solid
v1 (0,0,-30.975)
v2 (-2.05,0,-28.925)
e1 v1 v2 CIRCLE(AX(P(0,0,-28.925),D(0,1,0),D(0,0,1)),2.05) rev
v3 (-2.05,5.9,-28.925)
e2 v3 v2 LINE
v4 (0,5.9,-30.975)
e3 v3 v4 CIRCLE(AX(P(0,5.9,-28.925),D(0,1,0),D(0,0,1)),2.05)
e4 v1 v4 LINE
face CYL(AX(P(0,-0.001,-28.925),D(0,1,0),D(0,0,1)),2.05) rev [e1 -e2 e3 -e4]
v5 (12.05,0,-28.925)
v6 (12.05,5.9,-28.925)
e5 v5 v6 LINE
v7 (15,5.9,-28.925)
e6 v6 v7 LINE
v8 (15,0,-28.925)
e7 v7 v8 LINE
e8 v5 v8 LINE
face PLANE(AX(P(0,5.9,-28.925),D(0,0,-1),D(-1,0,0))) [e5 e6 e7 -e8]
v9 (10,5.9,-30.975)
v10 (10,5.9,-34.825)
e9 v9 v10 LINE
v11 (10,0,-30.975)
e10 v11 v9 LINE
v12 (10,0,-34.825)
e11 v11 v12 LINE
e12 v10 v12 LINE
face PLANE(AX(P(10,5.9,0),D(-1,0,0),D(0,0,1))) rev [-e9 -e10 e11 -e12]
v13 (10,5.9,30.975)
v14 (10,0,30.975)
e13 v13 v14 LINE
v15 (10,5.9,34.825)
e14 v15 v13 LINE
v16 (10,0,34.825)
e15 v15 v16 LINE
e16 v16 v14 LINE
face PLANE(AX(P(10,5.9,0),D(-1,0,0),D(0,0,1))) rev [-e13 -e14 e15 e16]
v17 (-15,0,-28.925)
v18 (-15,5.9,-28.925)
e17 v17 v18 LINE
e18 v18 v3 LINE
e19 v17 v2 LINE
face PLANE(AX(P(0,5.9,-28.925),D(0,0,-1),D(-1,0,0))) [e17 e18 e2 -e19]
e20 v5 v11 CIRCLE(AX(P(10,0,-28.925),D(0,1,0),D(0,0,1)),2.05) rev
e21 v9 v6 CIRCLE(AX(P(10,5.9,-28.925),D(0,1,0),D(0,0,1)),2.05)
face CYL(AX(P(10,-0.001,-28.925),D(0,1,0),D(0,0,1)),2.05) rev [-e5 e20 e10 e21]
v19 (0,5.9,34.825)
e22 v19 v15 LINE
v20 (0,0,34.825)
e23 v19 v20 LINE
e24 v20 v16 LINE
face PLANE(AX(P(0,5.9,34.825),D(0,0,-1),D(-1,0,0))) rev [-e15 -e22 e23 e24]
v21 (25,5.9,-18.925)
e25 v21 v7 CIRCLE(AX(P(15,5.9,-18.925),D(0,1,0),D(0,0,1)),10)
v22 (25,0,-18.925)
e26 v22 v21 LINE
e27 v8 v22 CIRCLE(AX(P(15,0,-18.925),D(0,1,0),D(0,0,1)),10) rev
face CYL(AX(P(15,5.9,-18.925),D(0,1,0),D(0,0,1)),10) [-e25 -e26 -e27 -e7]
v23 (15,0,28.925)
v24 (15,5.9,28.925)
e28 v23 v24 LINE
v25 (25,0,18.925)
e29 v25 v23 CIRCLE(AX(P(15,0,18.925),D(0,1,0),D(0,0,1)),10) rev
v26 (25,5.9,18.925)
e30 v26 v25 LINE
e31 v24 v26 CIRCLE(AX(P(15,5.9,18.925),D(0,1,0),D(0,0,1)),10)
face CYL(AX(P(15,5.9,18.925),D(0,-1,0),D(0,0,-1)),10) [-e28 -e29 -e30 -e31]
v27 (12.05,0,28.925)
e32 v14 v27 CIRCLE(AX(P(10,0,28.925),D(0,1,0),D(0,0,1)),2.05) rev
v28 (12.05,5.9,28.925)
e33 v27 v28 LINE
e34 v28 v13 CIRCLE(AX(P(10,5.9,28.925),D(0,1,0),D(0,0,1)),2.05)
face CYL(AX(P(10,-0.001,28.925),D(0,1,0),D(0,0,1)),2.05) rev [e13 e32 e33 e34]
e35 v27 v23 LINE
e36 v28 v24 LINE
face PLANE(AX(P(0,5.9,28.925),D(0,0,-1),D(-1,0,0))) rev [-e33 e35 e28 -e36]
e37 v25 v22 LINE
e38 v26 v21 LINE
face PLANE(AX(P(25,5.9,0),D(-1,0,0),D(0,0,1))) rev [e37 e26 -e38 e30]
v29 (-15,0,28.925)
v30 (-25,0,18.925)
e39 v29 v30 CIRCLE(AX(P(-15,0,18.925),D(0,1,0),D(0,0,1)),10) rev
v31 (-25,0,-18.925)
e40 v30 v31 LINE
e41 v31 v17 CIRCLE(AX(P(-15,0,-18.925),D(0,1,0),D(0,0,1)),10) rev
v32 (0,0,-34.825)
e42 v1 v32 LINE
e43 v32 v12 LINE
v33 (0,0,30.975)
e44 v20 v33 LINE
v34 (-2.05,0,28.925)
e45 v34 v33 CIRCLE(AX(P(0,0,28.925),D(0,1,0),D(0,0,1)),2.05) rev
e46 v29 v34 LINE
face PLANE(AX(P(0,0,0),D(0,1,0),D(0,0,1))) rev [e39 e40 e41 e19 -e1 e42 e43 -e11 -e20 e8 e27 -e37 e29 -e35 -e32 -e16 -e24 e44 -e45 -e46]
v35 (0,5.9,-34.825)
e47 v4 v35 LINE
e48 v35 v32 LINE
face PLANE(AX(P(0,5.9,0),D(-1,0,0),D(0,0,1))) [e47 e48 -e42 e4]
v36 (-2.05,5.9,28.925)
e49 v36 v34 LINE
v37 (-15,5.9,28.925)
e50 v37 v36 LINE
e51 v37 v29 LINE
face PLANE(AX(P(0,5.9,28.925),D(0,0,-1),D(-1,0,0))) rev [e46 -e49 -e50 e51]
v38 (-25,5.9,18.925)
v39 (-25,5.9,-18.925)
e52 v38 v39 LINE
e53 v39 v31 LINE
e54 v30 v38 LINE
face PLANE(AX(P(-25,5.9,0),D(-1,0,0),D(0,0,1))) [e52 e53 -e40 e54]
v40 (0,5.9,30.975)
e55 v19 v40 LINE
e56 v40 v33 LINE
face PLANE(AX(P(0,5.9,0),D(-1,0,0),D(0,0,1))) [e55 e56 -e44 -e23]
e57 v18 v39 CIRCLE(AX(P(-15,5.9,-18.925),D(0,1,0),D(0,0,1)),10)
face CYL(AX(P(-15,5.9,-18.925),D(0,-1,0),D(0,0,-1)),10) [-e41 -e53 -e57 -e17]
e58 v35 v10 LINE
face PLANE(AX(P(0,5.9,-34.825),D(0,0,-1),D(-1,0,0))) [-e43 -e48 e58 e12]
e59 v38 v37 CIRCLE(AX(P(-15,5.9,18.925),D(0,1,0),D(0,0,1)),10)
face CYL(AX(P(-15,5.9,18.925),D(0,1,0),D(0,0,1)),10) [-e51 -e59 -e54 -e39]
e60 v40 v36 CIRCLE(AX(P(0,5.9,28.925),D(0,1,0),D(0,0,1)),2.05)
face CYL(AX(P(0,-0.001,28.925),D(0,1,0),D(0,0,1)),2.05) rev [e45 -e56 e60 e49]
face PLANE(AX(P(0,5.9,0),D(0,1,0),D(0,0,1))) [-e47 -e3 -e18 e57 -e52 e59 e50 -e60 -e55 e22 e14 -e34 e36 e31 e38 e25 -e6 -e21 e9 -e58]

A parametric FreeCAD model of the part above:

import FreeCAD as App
import Part
import Sketcher
from FreeCAD import Vector


def edges_at(feature, points):
    """Names of the edges that pass closest to the given points."""
    edges = feature.Shape.Edges
    near = lambda p: min(range(len(edges)), key=lambda i: edges[i].distToShape(Part.Vertex(*p))[0])
    return sorted({f"Edge{near(p) + 1}" for p in points})


def add_polygon(sketch, points):
    """Adds a closed chain of lines whose ends are joined by coincident constraints."""
    first, n = sketch.GeometryCount, len(points)
    for a, b in zip(points, points[1:] + points[:1]):
        sketch.addGeometry(Part.LineSegment(App.Vector(*a, 0), App.Vector(*b, 0)), False)
    for i in range(n):
        sketch.addConstraint(Sketcher.Constraint("Coincident", first + i, 2, first + (i + 1) % n, 1))

doc = App.newDocument("Part")
body = doc.addObject("PartDesign::Body", "Body")

# Sketch on XZ plane
sketch1 = doc.addObject("Sketcher::SketchObject", "Sketch")
body.addObject(sketch1)
sketch1.AttachmentSupport = (doc.XZ_Plane, [""])
sketch1.MapMode = "FlatFace"
add_polygon(sketch1, [(-25, -29), (-25, 29), (0, 29), (0, 35), (10, 35), (10, 29), (25, 29), (25, -29), (10, -29), (10, -35), (0, -35), (0, -29)])  # lines 0-11
sketch1.addConstraint([
    Sketcher.Constraint("Vertical", 0),
    Sketcher.Constraint("Horizontal", 1),
    Sketcher.Constraint("Vertical", 2),
    Sketcher.Constraint("Horizontal", 3),
    Sketcher.Constraint("Vertical", 4),
    Sketcher.Constraint("Horizontal", 5),
    Sketcher.Constraint("Vertical", 6),
    Sketcher.Constraint("Horizontal", 7),
    Sketcher.Constraint("Vertical", 8),
    Sketcher.Constraint("Horizontal", 9),
    Sketcher.Constraint("Vertical", 10),
    Sketcher.Constraint("Horizontal", 11),
    Sketcher.Constraint("Symmetric", 0, 2, 6, 2, -1, 1),
    Sketcher.Constraint("Symmetric", 2, 2, 9, 2, -1, 1),
    Sketcher.Constraint("Symmetric", 4, 2, 7, 2, -1),
    Sketcher.Constraint("Symmetric", 1, 2, 10, 2, -1),
    Sketcher.Constraint("DistanceX", 1, 1, 1, 2, 25.0),
    Sketcher.Constraint("DistanceX", 3, 1, 3, 2, 10.0),
    Sketcher.Constraint("DistanceY", 2, 1, 2, 2, 5.9),
    Sketcher.Constraint("DistanceY", 0, 1, 0, 2, 57.85),
])
pad1 = doc.addObject("PartDesign::Pad", "Pad")
body.addObject(pad1)
pad1.Profile = sketch1
pad1.Length = 5.9
pad1.Reversed = True
doc.recompute()

fillet = doc.addObject("PartDesign::Fillet", "Fillet")
body.addObject(fillet)
fillet.Base = (pad1, edges_at(pad1, [
    (25, 2.95, -28.925),
    (25, 2.95, 28.925),
    (-25, 2.95, 28.925),
    (-25, 2.95, -28.925),
]))
fillet.Radius = 10

# Sketch on XZ plane
sketch2 = doc.addObject("Sketcher::SketchObject", "Sketch001")
body.addObject(sketch2)
sketch2.AttachmentSupport = (doc.XZ_Plane, [""])
sketch2.MapMode = "FlatFace"
sketch2.AttachmentOffset = App.Placement(Vector(0, 0, -5.9), App.Rotation())
sketch2.addGeometry(Part.Circle(Vector(0, -28.9, 0), Vector(0, 0, 1), 2), False)
sketch2.addConstraint([
    Sketcher.Constraint("PointOnObject", 0, 3, -2),
    Sketcher.Constraint("Diameter", 0, 4.1),
    Sketcher.Constraint("DistanceY", 0, 3, -1, 1, 28.925),
])
pocket1 = doc.addObject("PartDesign::Pocket", "Pocket")
body.addObject(pocket1)
pocket1.Profile = sketch2
pocket1.Type = "UpToFirst"
pocket1.Reversed = True

# Sketch on XZ plane
sketch3 = doc.addObject("Sketcher::SketchObject", "Sketch002")
body.addObject(sketch3)
sketch3.AttachmentSupport = (doc.XZ_Plane, [""])
sketch3.MapMode = "FlatFace"
sketch3.AttachmentOffset = App.Placement(Vector(0, 0, -5.9), App.Rotation())
sketch3.addGeometry(Part.Circle(Vector(10, -28.9, 0), Vector(0, 0, 1), 2), False)
sketch3.addConstraint([
    Sketcher.Constraint("Diameter", 0, 4.1),
    Sketcher.Constraint("DistanceX", -1, 1, 0, 3, 10.0),
    Sketcher.Constraint("DistanceY", 0, 3, -1, 1, 28.925),
])
pocket2 = doc.addObject("PartDesign::Pocket", "Pocket001")
body.addObject(pocket2)
pocket2.Profile = sketch3
pocket2.Type = "UpToFirst"
pocket2.Reversed = True

# Sketch on XZ plane
sketch4 = doc.addObject("Sketcher::SketchObject", "Sketch003")
body.addObject(sketch4)
sketch4.AttachmentSupport = (doc.XZ_Plane, [""])
sketch4.MapMode = "FlatFace"
sketch4.AttachmentOffset = App.Placement(Vector(0, 0, -5.9), App.Rotation())
sketch4.addGeometry(Part.Circle(Vector(0, 28.9, 0), Vector(0, 0, 1), 2), False)
sketch4.addConstraint([
    Sketcher.Constraint("PointOnObject", 0, 3, -2),
    Sketcher.Constraint("Diameter", 0, 4.1),
    Sketcher.Constraint("DistanceY", -1, 1, 0, 3, 28.925),
])
pocket3 = doc.addObject("PartDesign::Pocket", "Pocket002")
body.addObject(pocket3)
pocket3.Profile = sketch4
pocket3.Type = "UpToFirst"
pocket3.Reversed = True

# Sketch on XZ plane
sketch5 = doc.addObject("Sketcher::SketchObject", "Sketch004")
body.addObject(sketch5)
sketch5.AttachmentSupport = (doc.XZ_Plane, [""])
sketch5.MapMode = "FlatFace"
sketch5.AttachmentOffset = App.Placement(Vector(0, 0, -5.9), App.Rotation())
sketch5.addGeometry(Part.Circle(Vector(10, 28.9, 0), Vector(0, 0, 1), 2), False)
sketch5.addConstraint([
    Sketcher.Constraint("Diameter", 0, 4.1),
    Sketcher.Constraint("DistanceX", -1, 1, 0, 3, 10.0),
    Sketcher.Constraint("DistanceY", -1, 1, 0, 3, 28.925),
])
pocket4 = doc.addObject("PartDesign::Pocket", "Pocket003")
body.addObject(pocket4)
pocket4.Profile = sketch5
pocket4.Type = "UpToFirst"
pocket4.Reversed = True

doc.recompute()
